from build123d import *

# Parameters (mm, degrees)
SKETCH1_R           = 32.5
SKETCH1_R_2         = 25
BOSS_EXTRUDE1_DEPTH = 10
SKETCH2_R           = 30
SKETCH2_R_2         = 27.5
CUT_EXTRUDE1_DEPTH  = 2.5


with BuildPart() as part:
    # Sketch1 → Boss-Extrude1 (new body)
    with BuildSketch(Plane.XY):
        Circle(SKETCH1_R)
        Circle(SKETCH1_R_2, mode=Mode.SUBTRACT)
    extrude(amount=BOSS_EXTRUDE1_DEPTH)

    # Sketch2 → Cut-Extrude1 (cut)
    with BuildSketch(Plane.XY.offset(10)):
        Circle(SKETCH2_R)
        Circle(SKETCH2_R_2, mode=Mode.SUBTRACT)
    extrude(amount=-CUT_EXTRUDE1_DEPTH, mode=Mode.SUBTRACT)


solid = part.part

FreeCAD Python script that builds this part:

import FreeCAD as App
import Part
import Sketcher
from FreeCAD import Vector
Q = App.Units.Quantity

doc = App.newDocument("Part")
body = doc.addObject("PartDesign::Body", "Body")

# Sketch on XY plane
sketch1 = body.newObject("Sketcher::SketchObject", "Sketch")
sketch1.AttachmentSupport = (doc.getObject("XY_Plane"), [""])
sketch1.MapMode = "FlatFace"
sketch1.addGeometry([
    Part.Circle(Vector(0, 0, 0), Vector(0, 0, 1), 32),
    Part.Circle(Vector(0, 0, 0), Vector(0, 0, 1), 25),
], False)
sketch1.addConstraint([
    Sketcher.Constraint("Coincident", 0, 3, -1, 1),
    Sketcher.Constraint("Coincident", 1, 3, -1, 1),
    Sketcher.Constraint("Diameter", 0, Q("65 mm")),
    Sketcher.Constraint("Diameter", 1, Q("50 mm")),
])
pad1 = body.newObject("PartDesign::Pad", "Pad")
pad1.Profile = sketch1
pad1.Length = 10

# Sketch on XY plane
sketch2 = body.newObject("Sketcher::SketchObject", "Sketch001")
sketch2.AttachmentSupport = (doc.getObject("XY_Plane"), [""])
sketch2.MapMode = "FlatFace"
sketch2.AttachmentOffset = App.Placement(Vector(0, 0, 10), App.Rotation())
sketch2.addGeometry([
    Part.Circle(Vector(0, 0, 0), Vector(0, 0, 1), 30),
    Part.Circle(Vector(0, 0, 0), Vector(0, 0, 1), 28),
], False)
sketch2.addConstraint([
    Sketcher.Constraint("Coincident", 0, 3, -1, 1),
    Sketcher.Constraint("Coincident", 1, 3, -1, 1),
    Sketcher.Constraint("Diameter", 0, Q("60 mm")),
    Sketcher.Constraint("Diameter", 1, Q("55 mm")),
])
pocket1 = body.newObject("PartDesign::Pocket", "Pocket")
pocket1.Profile = sketch2
pocket1.Length = 2.5

doc.recompute()
